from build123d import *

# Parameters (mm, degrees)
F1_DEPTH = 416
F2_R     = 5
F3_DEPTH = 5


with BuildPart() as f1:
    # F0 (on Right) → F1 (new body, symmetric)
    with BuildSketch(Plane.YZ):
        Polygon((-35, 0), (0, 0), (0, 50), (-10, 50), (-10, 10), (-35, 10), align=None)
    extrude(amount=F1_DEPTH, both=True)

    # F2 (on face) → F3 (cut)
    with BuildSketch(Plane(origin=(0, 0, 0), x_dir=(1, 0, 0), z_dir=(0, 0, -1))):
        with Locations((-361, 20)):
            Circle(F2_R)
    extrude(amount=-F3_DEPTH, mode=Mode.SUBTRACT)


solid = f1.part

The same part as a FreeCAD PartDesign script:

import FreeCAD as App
import Part
import Sketcher
from FreeCAD import Vector

doc = App.newDocument("Part")
body = doc.addObject("PartDesign::Body", "Body")

sketch1 = doc.addObject("Sketcher::SketchObject", "Sketch")
body.addObject(sketch1)
sketch1.AttachmentSupport = (doc.YZ_Plane, [""])
sketch1.MapMode = "FlatFace"
sketch1.addGeometry([
    Part.LineSegment(Vector(-35, 0, 0), Vector(0, 0, 0)),
    Part.LineSegment(Vector(0, 0, 0), Vector(0, 50, 0)),
    Part.LineSegment(Vector(0, 50, 0), Vector(-10, 50, 0)),
    Part.LineSegment(Vector(-10, 50, 0), Vector(-10, 10, 0)),
    Part.LineSegment(Vector(-10, 10, 0), Vector(-35, 10, 0)),
    Part.LineSegment(Vector(-35, 10, 0), Vector(-35, 0, 0)),
], False)
sketch1.addConstraint([
    Sketcher.Constraint("Coincident", 0, 2, 1, 1),
    Sketcher.Constraint("Coincident", 1, 2, 2, 1),
    Sketcher.Constraint("Coincident", 2, 2, 3, 1),
    Sketcher.Constraint("Coincident", 3, 2, 4, 1),
    Sketcher.Constraint("Coincident", 4, 2, 5, 1),
    Sketcher.Constraint("Coincident", 5, 2, 0, 1),
    Sketcher.Constraint("Horizontal", 0),
    Sketcher.Constraint("Vertical", 1),
    Sketcher.Constraint("Horizontal", 2),
    Sketcher.Constraint("Vertical", 3),
    Sketcher.Constraint("Horizontal", 4),
    Sketcher.Constraint("Vertical", 5),
    Sketcher.Constraint("Coincident", 0, 2, -1, 1),
    Sketcher.Constraint("Equal", 2, 5),
    Sketcher.Constraint("DistanceX", 0, 1, 0, 2, 35.0),
    Sketcher.Constraint("DistanceX", 2, 2, 2, 1, 10.0),
    Sketcher.Constraint("DistanceY", 1, 1, 1, 2, 50.0),
])
pad1 = doc.addObject("PartDesign::Pad", "Pad")
body.addObject(pad1)
pad1.Profile = sketch1
pad1.Length = 832
pad1.Midplane = True

sketch2 = doc.addObject("Sketcher::SketchObject", "Sketch001")
body.addObject(sketch2)
sketch2.AttachmentSupport = (doc.XY_Plane, [""])
sketch2.MapMode = "FlatFace"
sketch2.addGeometry(Part.Circle(Vector(-361, -20, 0), Vector(0, 0, 1), 5), False)
sketch2.addConstraint([
    Sketcher.Constraint("Diameter", 0, 10.0),
    Sketcher.Constraint("DistanceX", 0, 3, -1, 1, 361.0),
    Sketcher.Constraint("DistanceY", 0, 3, -1, 1, 20.0),
])
pocket1 = doc.addObject("PartDesign::Pocket", "Pocket")
body.addObject(pocket1)
pocket1.Profile = sketch2
pocket1.Length = 5
pocket1.Reversed = True

doc.recompute()
